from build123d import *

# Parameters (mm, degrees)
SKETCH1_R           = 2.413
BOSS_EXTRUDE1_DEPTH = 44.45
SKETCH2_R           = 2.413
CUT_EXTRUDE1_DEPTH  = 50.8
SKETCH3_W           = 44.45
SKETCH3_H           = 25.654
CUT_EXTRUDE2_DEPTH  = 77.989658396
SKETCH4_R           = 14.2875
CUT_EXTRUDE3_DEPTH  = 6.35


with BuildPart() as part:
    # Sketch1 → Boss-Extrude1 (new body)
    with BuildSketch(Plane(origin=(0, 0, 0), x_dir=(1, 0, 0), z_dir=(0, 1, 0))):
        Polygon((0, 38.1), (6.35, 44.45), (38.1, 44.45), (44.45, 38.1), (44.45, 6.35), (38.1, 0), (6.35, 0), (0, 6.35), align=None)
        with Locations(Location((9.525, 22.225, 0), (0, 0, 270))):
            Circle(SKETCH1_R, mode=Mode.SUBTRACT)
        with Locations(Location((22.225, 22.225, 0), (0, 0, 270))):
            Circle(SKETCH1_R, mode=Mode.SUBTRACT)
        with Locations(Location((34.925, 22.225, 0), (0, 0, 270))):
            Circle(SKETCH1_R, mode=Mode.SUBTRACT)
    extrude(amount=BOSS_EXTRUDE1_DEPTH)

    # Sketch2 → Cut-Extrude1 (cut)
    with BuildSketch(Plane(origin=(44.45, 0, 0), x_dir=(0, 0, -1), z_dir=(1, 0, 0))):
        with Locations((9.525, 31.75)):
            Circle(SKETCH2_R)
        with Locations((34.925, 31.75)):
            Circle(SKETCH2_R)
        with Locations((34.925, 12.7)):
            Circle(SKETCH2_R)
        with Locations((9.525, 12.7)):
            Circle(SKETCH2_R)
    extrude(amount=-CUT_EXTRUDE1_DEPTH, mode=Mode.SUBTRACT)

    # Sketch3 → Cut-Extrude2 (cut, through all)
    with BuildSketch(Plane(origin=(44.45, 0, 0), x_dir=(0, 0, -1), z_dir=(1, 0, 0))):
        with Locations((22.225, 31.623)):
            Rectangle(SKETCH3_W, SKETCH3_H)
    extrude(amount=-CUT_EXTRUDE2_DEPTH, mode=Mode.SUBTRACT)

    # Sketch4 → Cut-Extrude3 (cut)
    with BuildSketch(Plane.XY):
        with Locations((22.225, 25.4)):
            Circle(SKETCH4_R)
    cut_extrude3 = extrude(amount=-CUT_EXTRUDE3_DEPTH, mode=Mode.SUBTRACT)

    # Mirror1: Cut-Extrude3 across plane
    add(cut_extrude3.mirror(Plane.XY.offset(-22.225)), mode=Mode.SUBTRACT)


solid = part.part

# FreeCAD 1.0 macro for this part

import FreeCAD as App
import Part
import Sketcher

V = App.Vector
Q = App.Units.Quantity


def add_polygon(sketch, points):
    """Adds a closed chain of lines whose ends are joined by coincident constraints."""
    first, n = sketch.GeometryCount, len(points)
    for a, b in zip(points, points[1:] + points[:1]):
        sketch.addGeometry(Part.LineSegment(App.Vector(*a, 0), App.Vector(*b, 0)), False)
    for i in range(n):
        sketch.addConstraint(Sketcher.Constraint("Coincident", first + i, 2, first + (i + 1) % n, 1))

doc = App.newDocument("Part")
body = doc.addObject("PartDesign::Body", "Body")

# Sketch on XZ plane
sketch1 = doc.addObject("Sketcher::SketchObject", "Sketch")
body.addObject(sketch1)
sketch1.AttachmentSupport = (doc.XZ_Plane, [""])
sketch1.MapMode = "FlatFace"
add_polygon(sketch1, [(6.35, -44.45), (0, -38.1), (0, -6.35), (6.35, 0), (38.1, 0), (44.45, -6.35), (44.45, -38.1), (38.1, -44.45)])  # lines 0-7
sketch1.addGeometry(Part.Circle(V(34.925, -22.225, 0), V(0, 0, 1), 2.413), False)  # 8
sketch1.addGeometry(Part.Circle(V(22.225, -22.225, 0), V(0, 0, 1), 2.413), False)  # 9
sketch1.addGeometry(Part.Circle(V(9.525, -22.225, 0), V(0, 0, 1), 2.413), False)  # 10
sketch1.addConstraint([
    Sketcher.Constraint("Vertical", 1),
    Sketcher.Constraint("Horizontal", 3),
    Sketcher.Constraint("Vertical", 5),
    Sketcher.Constraint("Horizontal", 7),
    Sketcher.Constraint("Equal", 8, 9),
    Sketcher.Constraint("Equal", 9, 10),
    Sketcher.Constraint("PointOnObject", 0, 2, -2),
    Sketcher.Constraint("PointOnObject", 2, 2, -1),
    Sketcher.Constraint("Perpendicular", 0, 2),
    Sketcher.Constraint("Perpendicular", 2, 4),
    Sketcher.Constraint("Perpendicular", 4, 6),
    Sketcher.Constraint("Horizontal", 8, 3, 9, 3),
    Sketcher.Constraint("Horizontal", 9, 3, 10, 3),
    Sketcher.Constraint("Horizontal", 1, 2, 4, 2),
    Sketcher.Constraint("Horizontal", 0, 2, 5, 2),
    Sketcher.Constraint("Vertical", 3, 2, 6, 2),
    Sketcher.Constraint("Vertical", 2, 2, 7, 2),
    Sketcher.Constraint("Equal", 7, 1),
    Sketcher.Constraint("Diameter", 8, Q("0.19 in")),
    Sketcher.Constraint("DistanceX", 10, 3, 8, 3, Q("1 in")),
    Sketcher.Constraint("DistanceX", 3, 1, 3, 2, Q("1.25 in")),
    Sketcher.Constraint("DistanceY", 0, 2, -1, 1, Q("1.5 in")),
    Sketcher.Constraint("DistanceX", 9, 3, 8, 3, Q("0.5 in")),
    Sketcher.Constraint("DistanceX", -1, 1, 8, 3, Q("1.375 in")),
    Sketcher.Constraint("DistanceY", 8, 3, -1, 1, Q("0.875 in")),
])
pad1 = doc.addObject("PartDesign::Pad", "Pad")
body.addObject(pad1)
pad1.Profile = sketch1
pad1.Length = Q("1.75 in")
pad1.Reversed = True

# Sketch on YZ plane
sketch2 = doc.addObject("Sketcher::SketchObject", "Sketch001")
body.addObject(sketch2)
sketch2.AttachmentSupport = (doc.YZ_Plane, [""])
sketch2.MapMode = "FlatFace"
sketch2.AttachmentOffset = App.Placement(V(0, 0, 1.75 * 25.4), App.Rotation())
sketch2.addGeometry([
    Part.Circle(V(31.75, -9.525, 0), V(0, 0, 1), 2.413),
    Part.Circle(V(31.75, -34.925, 0), V(0, 0, 1), 2.413),
    Part.Circle(V(12.7, -34.925, 0), V(0, 0, 1), 2.413),
    Part.Circle(V(12.7, -9.525, 0), V(0, 0, 1), 2.413),
], False)
sketch2.addConstraint([
    Sketcher.Constraint("Equal", 0, 1),
    Sketcher.Constraint("Equal", 1, 2),
    Sketcher.Constraint("Equal", 2, 3),
    Sketcher.Constraint("Horizontal", 1, 3, 2, 3),
    Sketcher.Constraint("Horizontal", 0, 3, 3, 3),
    Sketcher.Constraint("Vertical", 0, 3, 1, 3),
    Sketcher.Constraint("Vertical", 2, 3, 3, 3),
    Sketcher.Constraint("Diameter", 0, Q("0.19 in")),
    Sketcher.Constraint("DistanceY", 1, 3, 0, 3, Q("1 in")),
    Sketcher.Constraint("DistanceX", -1, 1, 2, 3, Q("0.5 in")),
    Sketcher.Constraint("DistanceX", -1, 1, 0, 3, Q("1.25 in")),
    Sketcher.Constraint("DistanceY", 0, 3, -1, 1, Q("0.375 in")),
])
pocket1 = doc.addObject("PartDesign::Pocket", "Pocket")
body.addObject(pocket1)
pocket1.Profile = sketch2
pocket1.Length = Q("2 in")

# Sketch on YZ plane
sketch3 = doc.addObject("Sketcher::SketchObject", "Sketch002")
body.addObject(sketch3)
sketch3.AttachmentSupport = (doc.YZ_Plane, [""])
sketch3.MapMode = "FlatFace"
sketch3.AttachmentOffset = App.Placement(V(0, 0, 1.75 * 25.4), App.Rotation())
add_polygon(sketch3, [(44.45, 0), (18.796, 0), (18.796, -44.45), (44.45, -44.45)])  # lines 0-3
sketch3.addConstraint([
    Sketcher.Constraint("Horizontal", 0),
    Sketcher.Constraint("Vertical", 1),
    Sketcher.Constraint("Horizontal", 2),
    Sketcher.Constraint("Vertical", 3),
    Sketcher.Constraint("PointOnObject", 0, 2, -1),
    Sketcher.Constraint("DistanceX", 0, 2, 0, 1, Q("1.01 in")),
    Sketcher.Constraint("DistanceY", 1, 2, 1, 1, Q("1.75 in")),
    Sketcher.Constraint("DistanceX", -1, 1, 0, 2, Q("0.74 in")),
])
pocket2 = doc.addObject("PartDesign::Pocket", "Pocket001")
body.addObject(pocket2)
pocket2.Profile = sketch3
pocket2.Type = "ThroughAll"

# Sketch on XY plane
sketch4 = doc.addObject("Sketcher::SketchObject", "Sketch003")
body.addObject(sketch4)
sketch4.AttachmentSupport = (doc.XY_Plane, [""])
sketch4.MapMode = "FlatFace"
sketch4.addGeometry(Part.Circle(V(22.225, 25.4, 0), V(0, 0, 1), 14.2875), False)
sketch4.addConstraint([
    Sketcher.Constraint("Diameter", 0, Q("1.125 in")),
    Sketcher.Constraint("DistanceY", -1, 1, 0, 3, Q("1 in")),
    Sketcher.Constraint("DistanceX", -1, 1, 0, 3, Q("0.875 in")),
])
pocket3 = doc.addObject("PartDesign::Pocket", "Pocket002")
body.addObject(pocket3)
pocket3.Profile = sketch4
pocket3.Length = Q("0.25 in")
doc.recompute()

datumplane = doc.addObject("PartDesign::Plane", "DatumPlane")
body.addObject(datumplane)
datumplane.AttachmentSupport = (doc.XY_Plane, [""])
datumplane.MapMode = "FlatFace"
datumplane.AttachmentOffset = App.Placement(V(0, 0, -0.875 * 25.4), App.Rotation())
mirrored = doc.addObject("PartDesign::Mirrored", "Mirrored")
body.addObject(mirrored)
mirrored.Originals = [pocket3]
mirrored.MirrorPlane = (datumplane, [""])
body.Tip = mirrored

doc.recompute()
